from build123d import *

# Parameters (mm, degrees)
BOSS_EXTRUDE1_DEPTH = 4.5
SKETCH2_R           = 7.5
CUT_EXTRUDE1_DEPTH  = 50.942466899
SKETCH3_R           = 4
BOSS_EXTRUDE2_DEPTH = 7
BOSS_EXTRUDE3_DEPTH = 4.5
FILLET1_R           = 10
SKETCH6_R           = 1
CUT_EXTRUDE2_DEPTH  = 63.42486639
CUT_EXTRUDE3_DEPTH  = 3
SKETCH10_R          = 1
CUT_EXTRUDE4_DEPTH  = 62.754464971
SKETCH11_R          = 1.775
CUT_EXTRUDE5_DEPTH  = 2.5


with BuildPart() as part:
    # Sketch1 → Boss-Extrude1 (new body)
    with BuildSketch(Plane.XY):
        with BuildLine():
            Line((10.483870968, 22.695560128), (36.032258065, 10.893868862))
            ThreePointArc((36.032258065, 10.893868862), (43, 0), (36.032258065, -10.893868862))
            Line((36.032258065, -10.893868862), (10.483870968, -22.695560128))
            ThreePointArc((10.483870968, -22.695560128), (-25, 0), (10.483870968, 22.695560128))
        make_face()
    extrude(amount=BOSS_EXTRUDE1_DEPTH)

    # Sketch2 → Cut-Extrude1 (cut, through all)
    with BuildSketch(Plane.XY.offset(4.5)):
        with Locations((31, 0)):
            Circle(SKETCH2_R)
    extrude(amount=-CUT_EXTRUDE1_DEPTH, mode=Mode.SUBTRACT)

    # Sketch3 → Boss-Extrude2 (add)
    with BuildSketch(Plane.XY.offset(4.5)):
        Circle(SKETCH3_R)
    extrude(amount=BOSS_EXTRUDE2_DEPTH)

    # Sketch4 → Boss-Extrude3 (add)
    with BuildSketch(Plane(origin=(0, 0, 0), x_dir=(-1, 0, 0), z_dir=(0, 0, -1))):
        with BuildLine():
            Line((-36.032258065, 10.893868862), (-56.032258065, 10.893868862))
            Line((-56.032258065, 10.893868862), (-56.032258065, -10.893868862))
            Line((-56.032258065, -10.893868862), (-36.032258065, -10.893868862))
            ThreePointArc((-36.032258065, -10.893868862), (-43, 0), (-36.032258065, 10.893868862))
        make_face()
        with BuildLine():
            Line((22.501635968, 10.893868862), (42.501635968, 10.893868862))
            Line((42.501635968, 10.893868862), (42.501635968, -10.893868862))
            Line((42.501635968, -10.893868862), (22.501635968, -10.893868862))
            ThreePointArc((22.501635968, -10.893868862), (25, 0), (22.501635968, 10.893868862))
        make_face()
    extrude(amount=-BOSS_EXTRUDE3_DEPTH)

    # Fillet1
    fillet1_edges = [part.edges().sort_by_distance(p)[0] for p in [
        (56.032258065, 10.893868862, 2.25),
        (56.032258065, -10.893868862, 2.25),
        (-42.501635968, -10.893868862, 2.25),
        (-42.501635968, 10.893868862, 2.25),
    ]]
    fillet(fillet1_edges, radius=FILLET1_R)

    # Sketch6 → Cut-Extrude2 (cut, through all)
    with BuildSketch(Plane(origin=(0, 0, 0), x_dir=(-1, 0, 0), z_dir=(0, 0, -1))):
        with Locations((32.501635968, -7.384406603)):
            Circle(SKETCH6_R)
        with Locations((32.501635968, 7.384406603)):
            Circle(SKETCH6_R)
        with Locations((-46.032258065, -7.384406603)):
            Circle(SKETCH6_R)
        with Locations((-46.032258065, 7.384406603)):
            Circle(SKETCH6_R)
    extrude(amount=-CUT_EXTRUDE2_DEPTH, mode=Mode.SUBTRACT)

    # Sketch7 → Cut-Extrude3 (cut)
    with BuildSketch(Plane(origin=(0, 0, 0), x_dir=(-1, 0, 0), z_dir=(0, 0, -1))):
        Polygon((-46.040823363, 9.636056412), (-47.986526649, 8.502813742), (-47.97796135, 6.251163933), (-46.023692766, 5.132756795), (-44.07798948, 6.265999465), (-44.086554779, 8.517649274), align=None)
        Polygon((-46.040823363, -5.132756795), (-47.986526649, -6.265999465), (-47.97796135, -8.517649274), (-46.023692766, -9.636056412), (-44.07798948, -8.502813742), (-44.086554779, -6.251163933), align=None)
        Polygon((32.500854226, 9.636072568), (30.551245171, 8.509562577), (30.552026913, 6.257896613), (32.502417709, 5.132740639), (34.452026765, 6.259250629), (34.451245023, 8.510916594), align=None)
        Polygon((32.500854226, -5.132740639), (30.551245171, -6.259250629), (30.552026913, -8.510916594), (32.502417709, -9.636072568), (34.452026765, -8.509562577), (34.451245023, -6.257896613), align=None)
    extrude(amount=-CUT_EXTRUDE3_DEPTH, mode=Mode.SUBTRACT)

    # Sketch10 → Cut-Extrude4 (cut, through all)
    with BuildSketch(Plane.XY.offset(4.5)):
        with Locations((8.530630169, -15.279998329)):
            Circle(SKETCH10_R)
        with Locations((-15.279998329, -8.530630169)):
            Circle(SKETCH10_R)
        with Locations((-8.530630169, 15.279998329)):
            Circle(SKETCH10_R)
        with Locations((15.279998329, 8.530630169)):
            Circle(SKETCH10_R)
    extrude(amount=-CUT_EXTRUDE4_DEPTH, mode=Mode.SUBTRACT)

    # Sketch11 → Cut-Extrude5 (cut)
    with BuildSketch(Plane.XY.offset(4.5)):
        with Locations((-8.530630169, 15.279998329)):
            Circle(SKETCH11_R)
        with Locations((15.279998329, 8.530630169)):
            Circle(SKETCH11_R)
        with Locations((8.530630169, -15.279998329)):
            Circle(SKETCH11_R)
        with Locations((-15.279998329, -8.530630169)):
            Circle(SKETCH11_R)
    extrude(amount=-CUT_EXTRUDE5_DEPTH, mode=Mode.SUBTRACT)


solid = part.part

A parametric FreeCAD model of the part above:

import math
import FreeCAD as App
import Part
import Sketcher

V = App.Vector


def edges_at(feature, points):
    """Names of the edges that pass closest to the given points."""
    edges = feature.Shape.Edges
    near = lambda p: min(range(len(edges)), key=lambda i: edges[i].distToShape(Part.Vertex(*p))[0])
    return sorted({f"Edge{near(p) + 1}" for p in points})

doc = App.newDocument("Part")
params = doc.addObject("Spreadsheet::Sheet", "Params")
for row, (alias, value) in enumerate([
    ("sketch1_radius", "25 mm"),
    ("sketch1_radius2", "12 mm"),
    ("pad1_length", "4.5 mm"),
    ("sketch2_diameter", "15 mm"),
    ("sketch3_diameter", "8 mm"),
    ("pad2_length", "7 mm"),
    ("sketch4_radius", "12 mm"),
    ("sketch4_radius2", "25 mm"),
    ("sketch4_width", "20 mm"),
    ("pad3_length", "4.5 mm"),
    ("fillet_radius", "10 mm"),
    ("sketch5_diameter", "2 mm"),
    ("pocket3_length", "3 mm"),
    ("sketch7_diameter", "2 mm"),
    ("sketch8_diameter", "3.55 mm"),
    ("pocket5_length", "2.5 mm"),
], start=1):
    params.set(f"A{row}", alias)
    params.set(f"B{row}", "=" + value)
    params.setAlias(f"B{row}", alias)

body = doc.addObject("PartDesign::Body", "Body")

# Sketch on XY plane
sketch1 = body.newObject("Sketcher::SketchObject", "Sketch")
sketch1.AttachmentSupport = (doc.getObject("XY_Plane"), [""])
sketch1.MapMode = "FlatFace"
sketch1.addGeometry([
    Part.LineSegment(V(36.032258, 10.893869, 0), V(10.483871, 22.69556, 0)),
    Part.ArcOfCircle(Part.Circle(V(0, 0, 0), V(0, 0, 1), 25), math.radians(65.206138), math.radians(294.793862)),
    Part.LineSegment(V(10.483871, -22.69556, 0), V(36.032258, -10.893869, 0)),
    Part.ArcOfCircle(Part.Circle(V(31, 0, 0), V(0, 0, 1), 12), math.radians(-65.206138), math.radians(65.206138)),
], False)
sketch1.addConstraint([
    Sketcher.Constraint("Tangent", 0, 2, 1, 1),
    Sketcher.Constraint("Tangent", 1, 2, 2, 1),
    Sketcher.Constraint("Tangent", 2, 2, 3, 1),
    Sketcher.Constraint("Tangent", 3, 2, 0, 1),
    Sketcher.Constraint("Coincident", 1, 3, -1, 1),
    Sketcher.Constraint("PointOnObject", 3, 3, -1),
    Sketcher.Constraint("Radius", 1, 25.0),
    Sketcher.Constraint("Radius", 3, 12.0),
    Sketcher.Constraint("DistanceX", -1, 1, 3, 3, 31.0),
])
sketch1.setExpression("Constraints[6]", "Params.sketch1_radius")
sketch1.setExpression("Constraints[7]", "Params.sketch1_radius2")
pad1 = body.newObject("PartDesign::Pad", "Pad")
pad1.Profile = sketch1
pad1.setExpression("Length", "Params.pad1_length")

# Sketch on XY plane
sketch2 = body.newObject("Sketcher::SketchObject", "Sketch001")
sketch2.AttachmentSupport = (doc.getObject("XY_Plane"), [""])
sketch2.MapMode = "FlatFace"
sketch2.AttachmentOffset = App.Placement(V(0, 0, 4.5), App.Rotation())
sketch2.addGeometry(Part.Circle(V(31, 0, 0), V(0, 0, 1), 7.5), False)
sketch2.addConstraint([
    Sketcher.Constraint("PointOnObject", 0, 3, -1),
    Sketcher.Constraint("Diameter", 0, 15.0),
    Sketcher.Constraint("DistanceX", -1, 1, 0, 3, 31.0),
])
sketch2.setExpression("Constraints[1]", "Params.sketch2_diameter")
pocket1 = body.newObject("PartDesign::Pocket", "Pocket")
pocket1.Profile = sketch2
pocket1.Type = "ThroughAll"

# Sketch on XY plane
sketch3 = body.newObject("Sketcher::SketchObject", "Sketch002")
sketch3.AttachmentSupport = (doc.getObject("XY_Plane"), [""])
sketch3.MapMode = "FlatFace"
sketch3.AttachmentOffset = App.Placement(V(0, 0, 4.5), App.Rotation())
sketch3.addGeometry(Part.Circle(V(0, 0, 0), V(0, 0, 1), 4), False)
sketch3.addConstraint([
    Sketcher.Constraint("Coincident", 0, 3, -1, 1),
    Sketcher.Constraint("Diameter", 0, 8.0),
])
sketch3.setExpression("Constraints[1]", "Params.sketch3_diameter")
pad2 = body.newObject("PartDesign::Pad", "Pad001")
pad2.Profile = sketch3
pad2.setExpression("Length", "Params.pad2_length")

# Sketch on XY plane
sketch4 = body.newObject("Sketcher::SketchObject", "Sketch003")
sketch4.AttachmentSupport = (doc.getObject("XY_Plane"), [""])
sketch4.MapMode = "FlatFace"
sketch4.addGeometry([
    Part.LineSegment(V(36.032258, 10.893869, 0), V(56.032258, 10.893869, 0)),  # 0
    Part.LineSegment(V(56.032258, 10.893869, 0), V(56.032258, -10.893869, 0)),  # 1
    Part.LineSegment(V(56.032258, -10.893869, 0), V(36.032258, -10.893869, 0)),  # 2
    Part.ArcOfCircle(Part.Circle(V(31, 0, 0), V(0, 0, 1), 12), math.radians(-65.206138), math.radians(65.206138)),  # 3
    Part.LineSegment(V(-42.501636, 10.893869, 0), V(-22.501636, 10.893869, 0)),  # 4
    Part.ArcOfCircle(Part.Circle(V(0, 0, 0), V(0, 0, 1), 25), math.radians(154.16667), math.radians(205.83333)),  # 5
    Part.LineSegment(V(-22.501636, -10.893869, 0), V(-42.501636, -10.893869, 0)),  # 6
    Part.LineSegment(V(-42.501636, -10.893869, 0), V(-42.501636, 10.893869, 0)),  # 7
], False)
sketch4.addConstraint([
    Sketcher.Constraint("Coincident", 0, 2, 1, 1),
    Sketcher.Constraint("Coincident", 1, 2, 2, 1),
    Sketcher.Constraint("Coincident", 2, 2, 3, 1),
    Sketcher.Constraint("Coincident", 3, 2, 0, 1),
    Sketcher.Constraint("Coincident", 4, 2, 5, 1),
    Sketcher.Constraint("Coincident", 5, 2, 6, 1),
    Sketcher.Constraint("Coincident", 6, 2, 7, 1),
    Sketcher.Constraint("Coincident", 7, 2, 4, 1),
    Sketcher.Constraint("Horizontal", 0),
    Sketcher.Constraint("Vertical", 1),
    Sketcher.Constraint("Horizontal", 2),
    Sketcher.Constraint("Horizontal", 4),
    Sketcher.Constraint("Horizontal", 6),
    Sketcher.Constraint("Vertical", 7),
    Sketcher.Constraint("Coincident", 5, 3, -1, 1),
    Sketcher.Constraint("Symmetric", 2, 2, 3, 2, -1),
    Sketcher.Constraint("Horizontal", 3, 2, 4, 2),
    Sketcher.Constraint("Horizontal", 2, 2, 5, 2),
    Sketcher.Constraint("Equal", 2, 4),
    Sketcher.Constraint("Radius", 3, 12.0),
    Sketcher.Constraint("Radius", 5, 25.0),
    Sketcher.Constraint("DistanceX", 0, 1, 0, 2, 20.0),
    Sketcher.Constraint("DistanceX", -1, 1, 3, 3, 31.0),
    Sketcher.Constraint("DistanceY", 1, 2, 1, 1, 21.787738),
])
sketch4.setExpression("Constraints[19]", "Params.sketch4_radius")
sketch4.setExpression("Constraints[20]", "Params.sketch4_radius2")
sketch4.setExpression("Constraints[21]", "Params.sketch4_width")
pad3 = body.newObject("PartDesign::Pad", "Pad002")
pad3.Profile = sketch4
pad3.setExpression("Length", "Params.pad3_length")
doc.recompute()

fillet = body.newObject("PartDesign::Fillet", "Fillet")
fillet.Base = (pad3, edges_at(pad3, [
    (56.032, 10.894, 2.25),
    (56.032, -10.894, 2.25),
    (-42.502, -10.894, 2.25),
    (-42.502, 10.894, 2.25),
]))
fillet.setExpression("Radius", "Params.fillet_radius")

# Sketch on XY plane
sketch5 = body.newObject("Sketcher::SketchObject", "Sketch004")
sketch5.AttachmentSupport = (doc.getObject("XY_Plane"), [""])
sketch5.MapMode = "FlatFace"
sketch5.addGeometry([
    Part.Circle(V(-32.501636, -7.384407, 0), V(0, 0, 1), 1),
    Part.Circle(V(-32.501636, 7.384407, 0), V(0, 0, 1), 1),
    Part.Circle(V(46.032258, -7.384407, 0), V(0, 0, 1), 1),
    Part.Circle(V(46.032258, 7.384407, 0), V(0, 0, 1), 1),
], False)
sketch5.addConstraint([
    Sketcher.Constraint("Equal", 0, 1),
    Sketcher.Constraint("Equal", 1, 2),
    Sketcher.Constraint("Equal", 2, 3),
    Sketcher.Constraint("Symmetric", 0, 3, 1, 3, -1),
    Sketcher.Constraint("Symmetric", 2, 3, 3, 3, -1),
    Sketcher.Constraint("Horizontal", 0, 3, 2, 3),
    Sketcher.Constraint("Diameter", 0, 2.0),
    Sketcher.Constraint("DistanceX", -1, 1, 2, 3, 46.032258),
    Sketcher.Constraint("DistanceX", 0, 3, -1, 1, 32.501636),
    Sketcher.Constraint("DistanceY", 0, 3, -1, 1, 7.384407),
])
sketch5.setExpression("Constraints[6]", "Params.sketch5_diameter")
pocket2 = body.newObject("PartDesign::Pocket", "Pocket001")
pocket2.Profile = sketch5
pocket2.Type = "ThroughAll"
pocket2.Reversed = True

# Sketch on XY plane
sketch6 = body.newObject("Sketcher::SketchObject", "Sketch005")
sketch6.AttachmentSupport = (doc.getObject("XY_Plane"), [""])
sketch6.MapMode = "FlatFace"
sketch6.addGeometry([
    Part.LineSegment(V(46.040823, 9.636056, 0), V(47.986527, 8.502814, 0)),  # 0
    Part.LineSegment(V(47.986527, 8.502814, 0), V(47.977961, 6.251164, 0)),  # 1
    Part.LineSegment(V(47.977961, 6.251164, 0), V(46.023693, 5.132757, 0)),  # 2
    Part.LineSegment(V(46.023693, 5.132757, 0), V(44.077989, 6.265999, 0)),  # 3
    Part.LineSegment(V(44.077989, 6.265999, 0), V(44.086555, 8.517649, 0)),  # 4
    Part.LineSegment(V(44.086555, 8.517649, 0), V(46.040823, 9.636056, 0)),  # 5
    Part.LineSegment(V(46.040823, -5.132757, 0), V(47.986527, -6.265999, 0)),  # 6
    Part.LineSegment(V(47.986527, -6.265999, 0), V(47.977961, -8.517649, 0)),  # 7
    Part.LineSegment(V(47.977961, -8.517649, 0), V(46.023693, -9.636056, 0)),  # 8
    Part.LineSegment(V(46.023693, -9.636056, 0), V(44.077989, -8.502814, 0)),  # 9
    Part.LineSegment(V(44.077989, -8.502814, 0), V(44.086555, -6.251164, 0)),  # 10
    Part.LineSegment(V(44.086555, -6.251164, 0), V(46.040823, -5.132757, 0)),  # 11
    Part.LineSegment(V(-32.500854, 9.636073, 0), V(-30.551245, 8.509563, 0)),  # 12
    Part.LineSegment(V(-30.551245, 8.509563, 0), V(-30.552027, 6.257897, 0)),  # 13
    Part.LineSegment(V(-30.552027, 6.257897, 0), V(-32.502418, 5.132741, 0)),  # 14
    Part.LineSegment(V(-32.502418, 5.132741, 0), V(-34.452027, 6.259251, 0)),  # 15
    Part.LineSegment(V(-34.452027, 6.259251, 0), V(-34.451245, 8.510917, 0)),  # 16
    Part.LineSegment(V(-34.451245, 8.510917, 0), V(-32.500854, 9.636073, 0)),  # 17
    Part.LineSegment(V(-32.500854, -5.132741, 0), V(-30.551245, -6.259251, 0)),  # 18
    Part.LineSegment(V(-30.551245, -6.259251, 0), V(-30.552027, -8.510917, 0)),  # 19
    Part.LineSegment(V(-30.552027, -8.510917, 0), V(-32.502418, -9.636073, 0)),  # 20
    Part.LineSegment(V(-32.502418, -9.636073, 0), V(-34.452027, -8.509563, 0)),  # 21
    Part.LineSegment(V(-34.452027, -8.509563, 0), V(-34.451245, -6.257897, 0)),  # 22
    Part.LineSegment(V(-34.451245, -6.257897, 0), V(-32.500854, -5.132741, 0)),  # 23
], False)
sketch6.addConstraint([
    Sketcher.Constraint("Coincident", 0, 2, 1, 1),
    Sketcher.Constraint("Coincident", 1, 2, 2, 1),
    Sketcher.Constraint("Coincident", 2, 2, 3, 1),
    Sketcher.Constraint("Coincident", 3, 2, 4, 1),
    Sketcher.Constraint("Coincident", 4, 2, 5, 1),
    Sketcher.Constraint("Coincident", 5, 2, 0, 1),
    Sketcher.Constraint("Coincident", 6, 2, 7, 1),
    Sketcher.Constraint("Coincident", 7, 2, 8, 1),
    Sketcher.Constraint("Coincident", 8, 2, 9, 1),
    Sketcher.Constraint("Coincident", 9, 2, 10, 1),
    Sketcher.Constraint("Coincident", 10, 2, 11, 1),
    Sketcher.Constraint("Coincident", 11, 2, 6, 1),
    Sketcher.Constraint("Coincident", 12, 2, 13, 1),
    Sketcher.Constraint("Coincident", 13, 2, 14, 1),
    Sketcher.Constraint("Coincident", 14, 2, 15, 1),
    Sketcher.Constraint("Coincident", 15, 2, 16, 1),
    Sketcher.Constraint("Coincident", 16, 2, 17, 1),
    Sketcher.Constraint("Coincident", 17, 2, 12, 1),
    Sketcher.Constraint("Coincident", 18, 2, 19, 1),
    Sketcher.Constraint("Coincident", 19, 2, 20, 1),
    Sketcher.Constraint("Coincident", 20, 2, 21, 1),
    Sketcher.Constraint("Coincident", 21, 2, 22, 1),
    Sketcher.Constraint("Coincident", 22, 2, 23, 1),
    Sketcher.Constraint("Coincident", 23, 2, 18, 1),
    Sketcher.Constraint("Parallel", 0, 3),
    Sketcher.Constraint("Parallel", 1, 4),
    Sketcher.Constraint("Parallel", 2, 5),
    Sketcher.Constraint("Parallel", 3, 6),
    Sketcher.Constraint("Parallel", 4, 7),
    Sketcher.Constraint("Parallel", 5, 8),
    Sketcher.Constraint("Parallel", 6, 9),
    Sketcher.Constraint("Parallel", 7, 10),
    Sketcher.Constraint("Parallel", 8, 11),
    Sketcher.Constraint("Parallel", 12, 15),
    Sketcher.Constraint("Parallel", 13, 16),
    Sketcher.Constraint("Parallel", 14, 17),
    Sketcher.Constraint("Parallel", 15, 18),
    Sketcher.Constraint("Parallel", 16, 19),
    Sketcher.Constraint("Parallel", 17, 20),
    Sketcher.Constraint("Parallel", 18, 21),
    Sketcher.Constraint("Parallel", 19, 22),
    Sketcher.Constraint("Parallel", 20, 23),
    Sketcher.Constraint("Vertical", 0, 2, 6, 2),
    Sketcher.Constraint("Vertical", 1, 2, 7, 2),
    Sketcher.Constraint("Vertical", 2, 2, 8, 2),
    Sketcher.Constraint("Vertical", 3, 2, 9, 2),
    Sketcher.Constraint("Vertical", 4, 2, 10, 2),
    Sketcher.Constraint("Vertical", 12, 2, 18, 2),
    Sketcher.Constraint("Vertical", 14, 2, 20, 2),
    Sketcher.Constraint("Vertical", 15, 2, 21, 2),
    Sketcher.Constraint("Vertical", 17, 2, 23, 2),
    Sketcher.Constraint("Equal", 0, 1),
    Sketcher.Constraint("Equal", 1, 2),
    Sketcher.Constraint("Equal", 2, 3),
    Sketcher.Constraint("Equal", 11, 12),
    Sketcher.Constraint("Equal", 12, 13),
    Sketcher.Constraint("Equal", 13, 14),
    Sketcher.Constraint("Equal", 14, 15),
    Sketcher.Constraint("Equal", 18, 19),
    Sketcher.Constraint("DistanceX", 15, 2, 13, 2, 3.9),
    Sketcher.Constraint("DistanceY", -1, 1, 3, 2, 6.265999),
    Sketcher.Constraint("DistanceY", 6, 2, -1, 1, 6.265999),
    Sketcher.Constraint("DistanceY", 2, 2, 5, 2, 4.5033),
    Sketcher.Constraint("DistanceX", 12, 2, 4, 2, 74.6378),
    Sketcher.Constraint("DistanceY", 15, 2, 4, 2, 2.258399),
    Sketcher.Constraint("DistanceY", 18, 2, 15, 2, 12.518501),
    Sketcher.Constraint("DistanceX", -1, 1, 1, 2, 47.977961),
    Sketcher.Constraint("DistanceX", -1, 1, 3, 2, 44.077989),
    Sketcher.Constraint("DistanceY", -1, 1, 14, 2, 5.132741),
    Sketcher.Constraint("DistanceX", 2, 2, 1, 2, 1.954269),
    Sketcher.Constraint("DistanceX", 2, 2, 5, 2, 0.017131),
    Sketcher.Constraint("DistanceX", 13, 2, 12, 2, 0.000782),
])
pocket3 = body.newObject("PartDesign::Pocket", "Pocket002")
pocket3.Profile = sketch6
pocket3.setExpression("Length", "Params.pocket3_length")
pocket3.Reversed = True

# Sketch on XY plane
sketch7 = body.newObject("Sketcher::SketchObject", "Sketch006")
sketch7.AttachmentSupport = (doc.getObject("XY_Plane"), [""])
sketch7.MapMode = "FlatFace"
sketch7.AttachmentOffset = App.Placement(V(0, 0, 4.5), App.Rotation())
sketch7.addGeometry([
    Part.Circle(V(8.53063, -15.279998, 0), V(0, 0, 1), 1),
    Part.Circle(V(-15.279998, -8.53063, 0), V(0, 0, 1), 1),
    Part.Circle(V(-8.53063, 15.279998, 0), V(0, 0, 1), 1),
    Part.Circle(V(15.279998, 8.53063, 0), V(0, 0, 1), 1),
], False)
sketch7.addConstraint([
    Sketcher.Constraint("Equal", 0, 1),
    Sketcher.Constraint("Equal", 1, 2),
    Sketcher.Constraint("Equal", 2, 3),
    Sketcher.Constraint("Symmetric", 0, 3, 2, 3, -1, 1),
    Sketcher.Constraint("Symmetric", 1, 3, 3, 3, -1, 1),
    Sketcher.Constraint("Diameter", 0, 2.0),
    Sketcher.Constraint("DistanceY", 0, 3, -1, 1, 15.279998),
    Sketcher.Constraint("DistanceX", 1, 3, -1, 1, 15.279998),
    Sketcher.Constraint("DistanceX", -1, 1, 0, 3, 8.53063),
    Sketcher.Constraint("DistanceY", 1, 3, -1, 1, 8.53063),
])
sketch7.setExpression("Constraints[5]", "Params.sketch7_diameter")
pocket4 = body.newObject("PartDesign::Pocket", "Pocket003")
pocket4.Profile = sketch7
pocket4.Type = "ThroughAll"

# Sketch on XY plane
sketch8 = body.newObject("Sketcher::SketchObject", "Sketch007")
sketch8.AttachmentSupport = (doc.getObject("XY_Plane"), [""])
sketch8.MapMode = "FlatFace"
sketch8.AttachmentOffset = App.Placement(V(0, 0, 4.5), App.Rotation())
sketch8.addGeometry([
    Part.Circle(V(-8.53063, 15.279998, 0), V(0, 0, 1), 1.775),
    Part.Circle(V(15.279998, 8.53063, 0), V(0, 0, 1), 1.775),
    Part.Circle(V(8.53063, -15.279998, 0), V(0, 0, 1), 1.775),
    Part.Circle(V(-15.279998, -8.53063, 0), V(0, 0, 1), 1.775),
], False)
sketch8.addConstraint([
    Sketcher.Constraint("Equal", 0, 1),
    Sketcher.Constraint("Equal", 1, 2),
    Sketcher.Constraint("Equal", 2, 3),
    Sketcher.Constraint("Symmetric", 0, 3, 2, 3, -1, 1),
    Sketcher.Constraint("Symmetric", 1, 3, 3, 3, -1, 1),
    Sketcher.Constraint("Diameter", 0, 3.55),
    Sketcher.Constraint("DistanceY", -1, 1, 0, 3, 15.279998),
    Sketcher.Constraint("DistanceX", -1, 1, 1, 3, 15.279998),
    Sketcher.Constraint("DistanceX", 0, 3, -1, 1, 8.53063),
    Sketcher.Constraint("DistanceY", -1, 1, 1, 3, 8.53063),
])
sketch8.setExpression("Constraints[5]", "Params.sketch8_diameter")
pocket5 = body.newObject("PartDesign::Pocket", "Pocket004")
pocket5.Profile = sketch8
pocket5.setExpression("Length", "Params.pocket5_length")

doc.recompute()
